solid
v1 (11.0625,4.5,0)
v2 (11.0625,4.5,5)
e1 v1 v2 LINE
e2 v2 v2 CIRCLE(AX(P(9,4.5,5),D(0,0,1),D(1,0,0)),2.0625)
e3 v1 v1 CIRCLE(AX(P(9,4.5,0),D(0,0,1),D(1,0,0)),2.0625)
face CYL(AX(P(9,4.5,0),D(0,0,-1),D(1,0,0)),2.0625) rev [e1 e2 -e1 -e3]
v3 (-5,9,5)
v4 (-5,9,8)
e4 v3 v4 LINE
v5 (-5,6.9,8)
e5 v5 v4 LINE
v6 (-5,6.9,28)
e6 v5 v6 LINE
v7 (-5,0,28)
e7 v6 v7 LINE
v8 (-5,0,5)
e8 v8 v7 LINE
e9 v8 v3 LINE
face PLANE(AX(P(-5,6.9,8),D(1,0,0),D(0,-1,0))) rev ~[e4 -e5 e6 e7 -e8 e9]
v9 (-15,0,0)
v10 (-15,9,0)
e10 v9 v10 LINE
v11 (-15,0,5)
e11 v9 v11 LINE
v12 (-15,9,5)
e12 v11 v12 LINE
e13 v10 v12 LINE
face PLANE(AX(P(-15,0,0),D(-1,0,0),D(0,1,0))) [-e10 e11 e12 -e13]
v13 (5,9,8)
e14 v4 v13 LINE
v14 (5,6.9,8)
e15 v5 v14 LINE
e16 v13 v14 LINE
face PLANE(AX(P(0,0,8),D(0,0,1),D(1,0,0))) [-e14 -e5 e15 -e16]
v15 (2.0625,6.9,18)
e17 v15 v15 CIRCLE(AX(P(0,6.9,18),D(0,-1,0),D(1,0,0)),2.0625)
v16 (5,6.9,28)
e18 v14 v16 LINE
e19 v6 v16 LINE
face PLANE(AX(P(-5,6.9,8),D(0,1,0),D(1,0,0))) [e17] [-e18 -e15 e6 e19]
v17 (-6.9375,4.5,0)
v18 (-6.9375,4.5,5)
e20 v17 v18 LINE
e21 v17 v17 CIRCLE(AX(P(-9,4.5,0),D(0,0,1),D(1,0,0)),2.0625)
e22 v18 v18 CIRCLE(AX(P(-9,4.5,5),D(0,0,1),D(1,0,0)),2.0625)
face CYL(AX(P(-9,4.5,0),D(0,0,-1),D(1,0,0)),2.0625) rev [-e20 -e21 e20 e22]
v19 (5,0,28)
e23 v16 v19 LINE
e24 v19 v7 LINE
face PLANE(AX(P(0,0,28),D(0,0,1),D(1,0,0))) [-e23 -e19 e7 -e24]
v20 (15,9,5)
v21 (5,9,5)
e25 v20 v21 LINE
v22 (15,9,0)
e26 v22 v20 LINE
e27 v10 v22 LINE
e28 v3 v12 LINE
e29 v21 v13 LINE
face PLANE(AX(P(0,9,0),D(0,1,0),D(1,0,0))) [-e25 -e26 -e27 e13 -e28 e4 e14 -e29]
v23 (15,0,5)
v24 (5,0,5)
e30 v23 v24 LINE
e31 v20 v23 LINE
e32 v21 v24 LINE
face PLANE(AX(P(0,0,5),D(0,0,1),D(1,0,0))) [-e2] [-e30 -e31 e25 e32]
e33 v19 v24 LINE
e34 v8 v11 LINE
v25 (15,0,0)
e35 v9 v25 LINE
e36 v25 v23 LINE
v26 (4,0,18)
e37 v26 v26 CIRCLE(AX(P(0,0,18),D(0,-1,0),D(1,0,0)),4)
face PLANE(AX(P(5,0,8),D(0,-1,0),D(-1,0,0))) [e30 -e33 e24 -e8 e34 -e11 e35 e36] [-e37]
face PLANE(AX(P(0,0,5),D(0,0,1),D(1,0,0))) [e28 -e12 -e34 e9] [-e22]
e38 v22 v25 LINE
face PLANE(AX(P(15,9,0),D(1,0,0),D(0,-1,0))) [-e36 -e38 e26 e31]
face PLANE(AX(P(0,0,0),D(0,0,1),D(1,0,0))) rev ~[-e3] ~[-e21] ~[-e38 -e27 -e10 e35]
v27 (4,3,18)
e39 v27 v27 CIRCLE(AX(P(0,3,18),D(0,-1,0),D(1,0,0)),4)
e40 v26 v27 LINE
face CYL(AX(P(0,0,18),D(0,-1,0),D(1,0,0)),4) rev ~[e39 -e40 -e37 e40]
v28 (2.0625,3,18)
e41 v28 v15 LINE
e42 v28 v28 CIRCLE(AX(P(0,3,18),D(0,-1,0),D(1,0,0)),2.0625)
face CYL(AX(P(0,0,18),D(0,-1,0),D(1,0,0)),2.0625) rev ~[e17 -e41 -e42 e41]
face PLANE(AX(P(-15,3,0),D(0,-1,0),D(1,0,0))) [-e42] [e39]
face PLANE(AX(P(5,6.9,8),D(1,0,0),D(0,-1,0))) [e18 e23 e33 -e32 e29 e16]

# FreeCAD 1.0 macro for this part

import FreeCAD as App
import Part
import Sketcher

doc = App.newDocument("Part")
body = doc.addObject("PartDesign::Body", "Body")

sketch1 = doc.addObject("Sketcher::SketchObject", "Sketch")
body.addObject(sketch1)
sketch1.AttachmentSupport = (doc.XY_Plane, [""])
sketch1.MapMode = "FlatFace"
sketch1.addGeometry(Part.LineSegment(App.Vector(15, 0, 0), App.Vector(15, 9, 0)), False)
sketch1.addGeometry(Part.LineSegment(App.Vector(15, 9, 0), App.Vector(-15, 9, 0)), False)
sketch1.addGeometry(Part.LineSegment(App.Vector(-15, 9, 0), App.Vector(-15, 0, 0)), False)
sketch1.addGeometry(Part.LineSegment(App.Vector(-15, 0, 0), App.Vector(15, 0, 0)), False)
sketch1.addGeometry(Part.Circle(App.Vector(9, 4.5, 0), App.Vector(0, 0, 1), 2.1), False)
sketch1.addGeometry(Part.Circle(App.Vector(-9, 4.5, 0), App.Vector(0, 0, 1), 2.1), False)
sketch1.addConstraint(Sketcher.Constraint("Coincident", 0, 2, 1, 1))
sketch1.addConstraint(Sketcher.Constraint("Coincident", 1, 2, 2, 1))
sketch1.addConstraint(Sketcher.Constraint("Coincident", 2, 2, 3, 1))
sketch1.addConstraint(Sketcher.Constraint("Coincident", 3, 2, 0, 1))
sketch1.addConstraint(Sketcher.Constraint("Vertical", 0))
sketch1.addConstraint(Sketcher.Constraint("Horizontal", 1))
sketch1.addConstraint(Sketcher.Constraint("Vertical", 2))
sketch1.addConstraint(Sketcher.Constraint("Horizontal", 3))
sketch1.addConstraint(Sketcher.Constraint("Equal", 4, 5))
sketch1.addConstraint(Sketcher.Constraint("Symmetric", 2, 2, 3, 2, -1, 1))
sketch1.addConstraint(Sketcher.Constraint("Symmetric", 4, 3, 5, 3, -2))
sketch1.addConstraint(Sketcher.Constraint("DistanceX", 1, 2, 1, 1, 30.0))
sketch1.addConstraint(Sketcher.Constraint("DistanceY", 0, 1, 0, 2, 9.0))
sketch1.addConstraint(Sketcher.Constraint("Diameter", 4, 4.125))
sketch1.addConstraint(Sketcher.Constraint("DistanceX", -1, 1, 4, 3, 9.0))
sketch1.addConstraint(Sketcher.Constraint("DistanceY", -1, 1, 4, 3, 4.5))
pad1 = doc.addObject("PartDesign::Pad", "Pad")
body.addObject(pad1)
pad1.Profile = sketch1
pad1.Length = 5

sketch2 = doc.addObject("Sketcher::SketchObject", "Sketch001")
body.addObject(sketch2)
sketch2.AttachmentSupport = (doc.XY_Plane, [""])
sketch2.MapMode = "FlatFace"
sketch2.AttachmentOffset = App.Placement(App.Vector(0, 0, 5), App.Rotation())
sketch2.addGeometry(Part.LineSegment(App.Vector(-5, 9, 0), App.Vector(-5, 0, 0)), False)
sketch2.addGeometry(Part.LineSegment(App.Vector(-5, 0, 0), App.Vector(5, 0, 0)), False)
sketch2.addGeometry(Part.LineSegment(App.Vector(5, 0, 0), App.Vector(5, 9, 0)), False)
sketch2.addGeometry(Part.LineSegment(App.Vector(5, 9, 0), App.Vector(-5, 9, 0)), False)
sketch2.addConstraint(Sketcher.Constraint("Coincident", 0, 2, 1, 1))
sketch2.addConstraint(Sketcher.Constraint("Coincident", 1, 2, 2, 1))
sketch2.addConstraint(Sketcher.Constraint("Coincident", 2, 2, 3, 1))
sketch2.addConstraint(Sketcher.Constraint("Coincident", 3, 2, 0, 1))
sketch2.addConstraint(Sketcher.Constraint("Vertical", 0))
sketch2.addConstraint(Sketcher.Constraint("Horizontal", 1))
sketch2.addConstraint(Sketcher.Constraint("Vertical", 2))
sketch2.addConstraint(Sketcher.Constraint("Horizontal", 3))
sketch2.addConstraint(Sketcher.Constraint("Symmetric", 0, 2, 1, 2, -1, 1))
sketch2.addConstraint(Sketcher.Constraint("DistanceX", 1, 1, 1, 2, 10.0))
sketch2.addConstraint(Sketcher.Constraint("DistanceY", 0, 2, 0, 1, 9.0))
pad2 = doc.addObject("PartDesign::Pad", "Pad001")
body.addObject(pad2)
pad2.Profile = sketch2
pad2.Length = 3

sketch3 = doc.addObject("Sketcher::SketchObject", "Sketch002")
body.addObject(sketch3)
sketch3.AttachmentSupport = (doc.XY_Plane, [""])
sketch3.MapMode = "FlatFace"
sketch3.AttachmentOffset = App.Placement(App.Vector(0, 0, 8), App.Rotation())
sketch3.addGeometry(Part.LineSegment(App.Vector(5, 7, 0), App.Vector(-5, 7, 0)), False)
sketch3.addGeometry(Part.LineSegment(App.Vector(-5, 7, 0), App.Vector(-5, 0, 0)), False)
sketch3.addGeometry(Part.LineSegment(App.Vector(-5, 0, 0), App.Vector(5, 0, 0)), False)
sketch3.addGeometry(Part.LineSegment(App.Vector(5, 0, 0), App.Vector(5, 7, 0)), False)
sketch3.addConstraint(Sketcher.Constraint("Coincident", 0, 2, 1, 1))
sketch3.addConstraint(Sketcher.Constraint("Coincident", 1, 2, 2, 1))
sketch3.addConstraint(Sketcher.Constraint("Coincident", 2, 2, 3, 1))
sketch3.addConstraint(Sketcher.Constraint("Coincident", 3, 2, 0, 1))
sketch3.addConstraint(Sketcher.Constraint("Horizontal", 0))
sketch3.addConstraint(Sketcher.Constraint("Vertical", 1))
sketch3.addConstraint(Sketcher.Constraint("Horizontal", 2))
sketch3.addConstraint(Sketcher.Constraint("Vertical", 3))
sketch3.addConstraint(Sketcher.Constraint("Symmetric", 1, 2, 2, 2, -1, 1))
sketch3.addConstraint(Sketcher.Constraint("DistanceY", 1, 2, 1, 1, 6.9))
sketch3.addConstraint(Sketcher.Constraint("DistanceX", 0, 2, 0, 1, 10.0))
pad3 = doc.addObject("PartDesign::Pad", "Pad002")
body.addObject(pad3)
pad3.Profile = sketch3
pad3.Length = 20

sketch4 = doc.addObject("Sketcher::SketchObject", "Sketch003")
body.addObject(sketch4)
sketch4.AttachmentSupport = (doc.XZ_Plane, [""])
sketch4.MapMode = "FlatFace"
sketch4.addGeometry(Part.Circle(App.Vector(0, 18, 0), App.Vector(0, 0, 1), 4), False)
sketch4.addConstraint(Sketcher.Constraint("PointOnObject", 0, 3, -2))
sketch4.addConstraint(Sketcher.Constraint("Diameter", 0, 8.0))
sketch4.addConstraint(Sketcher.Constraint("DistanceY", -1, 1, 0, 3, 18.0))
pocket1 = doc.addObject("PartDesign::Pocket", "Pocket")
body.addObject(pocket1)
pocket1.Profile = sketch4
pocket1.Length = 3

sketch5 = doc.addObject("Sketcher::SketchObject", "Sketch004")
body.addObject(sketch5)
sketch5.AttachmentSupport = (doc.XZ_Plane, [""])
sketch5.MapMode = "FlatFace"
sketch5.addGeometry(Part.Circle(App.Vector(0, 18, 0), App.Vector(0, 0, 1), 2.1), False)
sketch5.addConstraint(Sketcher.Constraint("PointOnObject", 0, 3, -2))
sketch5.addConstraint(Sketcher.Constraint("Diameter", 0, 4.125))
sketch5.addConstraint(Sketcher.Constraint("DistanceY", -1, 1, 0, 3, 18.0))
pocket2 = doc.addObject("PartDesign::Pocket", "Pocket001")
body.addObject(pocket2)
pocket2.Profile = sketch5
pocket2.Length = 6.9

doc.recompute()
